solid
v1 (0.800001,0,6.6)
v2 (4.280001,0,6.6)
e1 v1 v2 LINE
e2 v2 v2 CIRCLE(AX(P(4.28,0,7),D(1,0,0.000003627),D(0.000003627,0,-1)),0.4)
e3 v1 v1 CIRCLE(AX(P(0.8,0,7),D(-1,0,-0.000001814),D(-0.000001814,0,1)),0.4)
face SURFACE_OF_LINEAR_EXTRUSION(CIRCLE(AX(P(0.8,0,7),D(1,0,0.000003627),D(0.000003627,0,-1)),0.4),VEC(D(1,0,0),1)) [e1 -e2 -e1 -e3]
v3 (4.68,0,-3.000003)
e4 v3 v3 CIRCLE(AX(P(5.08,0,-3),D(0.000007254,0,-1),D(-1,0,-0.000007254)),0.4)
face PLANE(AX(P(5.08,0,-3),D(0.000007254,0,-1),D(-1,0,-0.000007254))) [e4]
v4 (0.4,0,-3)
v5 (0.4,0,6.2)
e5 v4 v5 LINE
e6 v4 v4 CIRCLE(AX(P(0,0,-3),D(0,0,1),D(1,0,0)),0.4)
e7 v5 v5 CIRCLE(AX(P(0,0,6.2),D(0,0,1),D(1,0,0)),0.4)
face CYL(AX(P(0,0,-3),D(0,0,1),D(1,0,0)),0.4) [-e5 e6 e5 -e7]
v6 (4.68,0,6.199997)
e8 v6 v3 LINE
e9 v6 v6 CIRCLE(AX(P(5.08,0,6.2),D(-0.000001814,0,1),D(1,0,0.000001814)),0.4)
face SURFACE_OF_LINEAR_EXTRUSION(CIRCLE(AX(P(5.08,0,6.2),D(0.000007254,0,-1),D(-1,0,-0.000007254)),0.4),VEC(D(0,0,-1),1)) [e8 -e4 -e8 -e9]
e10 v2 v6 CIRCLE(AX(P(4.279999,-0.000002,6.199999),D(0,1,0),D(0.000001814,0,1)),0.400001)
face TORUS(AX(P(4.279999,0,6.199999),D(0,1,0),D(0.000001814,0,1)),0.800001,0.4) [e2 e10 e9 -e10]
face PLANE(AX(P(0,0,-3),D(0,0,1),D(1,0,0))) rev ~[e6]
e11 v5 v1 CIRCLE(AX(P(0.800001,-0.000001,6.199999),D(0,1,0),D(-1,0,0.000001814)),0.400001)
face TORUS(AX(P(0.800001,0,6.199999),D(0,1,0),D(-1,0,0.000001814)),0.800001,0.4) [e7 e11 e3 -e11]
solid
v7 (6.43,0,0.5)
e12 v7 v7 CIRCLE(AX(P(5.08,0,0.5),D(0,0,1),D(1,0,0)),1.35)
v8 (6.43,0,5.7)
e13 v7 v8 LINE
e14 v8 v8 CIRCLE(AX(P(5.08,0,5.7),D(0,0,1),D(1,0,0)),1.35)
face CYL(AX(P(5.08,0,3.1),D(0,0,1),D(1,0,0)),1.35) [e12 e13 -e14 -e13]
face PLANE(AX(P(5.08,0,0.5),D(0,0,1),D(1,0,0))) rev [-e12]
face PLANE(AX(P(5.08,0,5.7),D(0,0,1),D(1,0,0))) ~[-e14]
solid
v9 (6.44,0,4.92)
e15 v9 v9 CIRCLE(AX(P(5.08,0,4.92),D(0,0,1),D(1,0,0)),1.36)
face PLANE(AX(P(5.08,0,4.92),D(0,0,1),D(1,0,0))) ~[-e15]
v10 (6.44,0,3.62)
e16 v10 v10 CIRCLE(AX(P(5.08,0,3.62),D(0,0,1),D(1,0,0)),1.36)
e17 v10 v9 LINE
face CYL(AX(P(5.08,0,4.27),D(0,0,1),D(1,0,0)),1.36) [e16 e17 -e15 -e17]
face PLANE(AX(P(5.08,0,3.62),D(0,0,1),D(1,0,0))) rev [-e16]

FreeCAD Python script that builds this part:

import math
import FreeCAD as App
import Part
import Sketcher
from FreeCAD import Vector


def add_polygon(sketch, points):
    """Adds a closed chain of lines whose ends are joined by coincident constraints."""
    first, n = sketch.GeometryCount, len(points)
    for a, b in zip(points, points[1:] + points[:1]):
        sketch.addGeometry(Part.LineSegment(App.Vector(*a, 0), App.Vector(*b, 0)), False)
    for i in range(n):
        sketch.addConstraint(Sketcher.Constraint("Coincident", first + i, 2, first + (i + 1) % n, 1))

doc = App.newDocument("Part")
body = doc.addObject("PartDesign::Body", "Body")

sketch1 = body.newObject("Sketcher::SketchObject", "Sketch")
sketch1.AttachmentSupport = (doc.getObject("XY_Plane"), [""])
sketch1.MapMode = "FlatFace"
sketch1.addGeometry(Part.Circle(Vector(0, 0, 0), Vector(0, 0, 1), 0.4), False)
sketch1.addConstraint(Sketcher.Constraint("Coincident", 0, 3, -1, 1))
sketch1.addConstraint(Sketcher.Constraint("Diameter", 0, 0.8))

sketch2 = body.newObject("Sketcher::SketchObject", "Sketch001")
sketch2.AttachmentSupport = (doc.getObject("XZ_Plane"), [""])
sketch2.MapMode = "FlatFace"
sketch2.addGeometry(Part.LineSegment(Vector(0, -3, 0), Vector(0, 6.2, 0)), False)
sketch2.addGeometry(Part.ArcOfCircle(Part.Circle(Vector(0.8, 6.2, 0), Vector(0, 0, 1), 0.8), math.radians(90), math.radians(180)), False)
sketch2.addGeometry(Part.LineSegment(Vector(0.8, 7, 0), Vector(4.3, 7, 0)), False)
sketch2.addGeometry(Part.ArcOfCircle(Part.Circle(Vector(4.3, 6.2, 0), Vector(0, 0, 1), 0.8), math.radians(0), math.radians(90)), False)
sketch2.addGeometry(Part.LineSegment(Vector(5.1, 6.2, 0), Vector(5.1, -3, 0)), False)
sketch2.addConstraint(Sketcher.Constraint("Tangent", 0, 2, 1, 2))
sketch2.addConstraint(Sketcher.Constraint("Tangent", 1, 1, 2, 1))
sketch2.addConstraint(Sketcher.Constraint("Tangent", 2, 2, 3, 2))
sketch2.addConstraint(Sketcher.Constraint("Tangent", 3, 1, 4, 1))
sketch2.addConstraint(Sketcher.Constraint("Vertical", 0))
sketch2.addConstraint(Sketcher.Constraint("Horizontal", 2))
sketch2.addConstraint(Sketcher.Constraint("Vertical", 4))
sketch2.addConstraint(Sketcher.Constraint("Equal", 1, 3))
sketch2.addConstraint(Sketcher.Constraint("PointOnObject", 0, 1, -2))
sketch2.addConstraint(Sketcher.Constraint("Horizontal", 0, 1, 4, 2))
sketch2.addConstraint(Sketcher.Constraint("Radius", 1, 0.800001))
sketch2.addConstraint(Sketcher.Constraint("DistanceY", 0, 1, 0, 2, 9.2))
sketch2.addConstraint(Sketcher.Constraint("DistanceY", 0, 1, -1, 1, 3.0))
sketch2.addConstraint(Sketcher.Constraint("DistanceX", 2, 1, 2, 2, 3.48))
doc.recompute()

additivepipe = body.newObject("PartDesign::AdditivePipe", "AdditivePipe")
additivepipe.Profile = sketch1
additivepipe.Spine = (sketch2, ["Edge1", "Edge2", "Edge3", "Edge4", "Edge5"])
body2 = doc.addObject("PartDesign::Body", "Body001")

sketch3 = body2.newObject("Sketcher::SketchObject", "Sketch002")
sketch3.AttachmentSupport = (doc.getObject("XZ_Plane001"), [""])
sketch3.MapMode = "FlatFace"
add_polygon(sketch3, [(5.1, 5.7), (5.1, 0.5), (6.4, 0.5), (6.4, 5.7)])
sketch3.addGeometry(Part.LineSegment(Vector(5.1, 0.5, 0), Vector(5.1, 5.7, 0)), True)
sketch3.addConstraint(Sketcher.Constraint("Vertical", 0))
sketch3.addConstraint(Sketcher.Constraint("Horizontal", 1))
sketch3.addConstraint(Sketcher.Constraint("Vertical", 2))
sketch3.addConstraint(Sketcher.Constraint("Horizontal", 3))
sketch3.addConstraint(Sketcher.Constraint("Vertical", 4))
sketch3.addConstraint(Sketcher.Constraint("Coincident", 4, 1, 0, 2))
sketch3.addConstraint(Sketcher.Constraint("Horizontal", 2, 2, 4, 2))
sketch3.addConstraint(Sketcher.Constraint("DistanceY", 0, 2, 0, 1, 5.2))
sketch3.addConstraint(Sketcher.Constraint("DistanceX", 1, 1, 1, 2, 1.35))
sketch3.addConstraint(Sketcher.Constraint("DistanceY", -1, 1, 0, 2, 0.5))
sketch3.addConstraint(Sketcher.Constraint("DistanceX", -1, 1, 0, 2, 5.08))
revolution = body2.newObject("PartDesign::Revolution", "Revolution")
revolution.Profile = sketch3
revolution.ReferenceAxis = (sketch3, ["Axis0"])
revolution.Angle = 360
body3 = doc.addObject("PartDesign::Body", "Body002")

sketch4 = body3.newObject("Sketcher::SketchObject", "Sketch003")
sketch4.AttachmentSupport = (doc.getObject("XZ_Plane002"), [""])
sketch4.MapMode = "FlatFace"
add_polygon(sketch4, [(5.1, 4.9), (5.1, 3.6), (6.4, 3.6), (6.4, 4.9)])
sketch4.addGeometry(Part.LineSegment(Vector(5.1, 3.6, 0), Vector(5.1, 4.9, 0)), True)
sketch4.addConstraint(Sketcher.Constraint("Vertical", 0))
sketch4.addConstraint(Sketcher.Constraint("Horizontal", 1))
sketch4.addConstraint(Sketcher.Constraint("Vertical", 2))
sketch4.addConstraint(Sketcher.Constraint("Horizontal", 3))
sketch4.addConstraint(Sketcher.Constraint("Vertical", 4))
sketch4.addConstraint(Sketcher.Constraint("Coincident", 4, 1, 0, 2))
sketch4.addConstraint(Sketcher.Constraint("Horizontal", 2, 2, 4, 2))
sketch4.addConstraint(Sketcher.Constraint("DistanceY", 0, 2, 0, 1, 1.3))
sketch4.addConstraint(Sketcher.Constraint("DistanceX", 1, 1, 1, 2, 1.36))
sketch4.addConstraint(Sketcher.Constraint("DistanceX", -1, 1, 0, 2, 5.08))
sketch4.addConstraint(Sketcher.Constraint("DistanceY", -1, 1, 0, 2, 3.62))
revolution2 = body3.newObject("PartDesign::Revolution", "Revolution001")
revolution2.Profile = sketch4
revolution2.ReferenceAxis = (sketch4, ["Axis0"])
revolution2.Angle = 360

doc.recompute()
